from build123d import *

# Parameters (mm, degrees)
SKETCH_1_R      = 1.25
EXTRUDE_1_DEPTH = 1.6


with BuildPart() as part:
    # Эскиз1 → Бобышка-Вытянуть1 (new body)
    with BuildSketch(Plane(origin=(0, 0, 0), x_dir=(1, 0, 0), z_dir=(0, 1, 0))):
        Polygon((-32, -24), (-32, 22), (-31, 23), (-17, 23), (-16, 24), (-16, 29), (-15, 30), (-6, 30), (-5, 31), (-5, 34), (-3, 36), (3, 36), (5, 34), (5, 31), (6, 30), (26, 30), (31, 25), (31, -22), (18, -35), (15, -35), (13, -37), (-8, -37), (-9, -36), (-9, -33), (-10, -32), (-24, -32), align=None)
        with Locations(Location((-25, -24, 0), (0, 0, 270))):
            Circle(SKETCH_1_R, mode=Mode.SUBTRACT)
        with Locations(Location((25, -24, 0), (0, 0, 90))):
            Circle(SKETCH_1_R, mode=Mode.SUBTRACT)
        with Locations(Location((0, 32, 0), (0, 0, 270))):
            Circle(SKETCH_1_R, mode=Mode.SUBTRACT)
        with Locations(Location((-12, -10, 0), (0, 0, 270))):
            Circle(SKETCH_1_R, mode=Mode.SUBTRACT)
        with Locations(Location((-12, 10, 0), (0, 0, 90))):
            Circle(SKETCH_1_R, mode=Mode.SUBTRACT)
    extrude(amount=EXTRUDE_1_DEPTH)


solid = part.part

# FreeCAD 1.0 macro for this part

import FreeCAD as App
import Part
import Sketcher

V = App.Vector


def add_polygon(sketch, points):
    """Adds a closed chain of lines whose ends are joined by coincident constraints."""
    first, n = sketch.GeometryCount, len(points)
    for a, b in zip(points, points[1:] + points[:1]):
        sketch.addGeometry(Part.LineSegment(App.Vector(*a, 0), App.Vector(*b, 0)), False)
    for i in range(n):
        sketch.addConstraint(Sketcher.Constraint("Coincident", first + i, 2, first + (i + 1) % n, 1))

doc = App.newDocument("Part")
params = doc.addObject("Spreadsheet::Sheet", "Params")
for row, (alias, value) in enumerate([
    ("sketch1_diameter", "2.5 mm"),
    ("sketch1_width", "14 mm"),
    ("sketch1_width2", "21 mm"),
    ("sketch1_width3", "3 mm"),
    ("sketch1_width4", "20 mm"),
    ("pad1_length", "1.6 mm"),
], start=1):
    params.set(f"A{row}", alias)
    params.set(f"B{row}", "=" + value)
    params.setAlias(f"B{row}", alias)

body = doc.addObject("PartDesign::Body", "Body")

# Sketch on XZ plane
sketch1 = doc.addObject("Sketcher::SketchObject", "Sketch")
body.addObject(sketch1)
sketch1.AttachmentSupport = (doc.XZ_Plane, [""])
sketch1.MapMode = "FlatFace"
add_polygon(sketch1, [(-32, -22), (-32, 24), (-24, 32), (-10, 32), (-9, 33), (-9, 36), (-8, 37), (13, 37), (15, 35), (18, 35), (31, 22), (31, -25), (26, -30), (6, -30), (5, -31), (5, -34), (3, -36), (-3, -36), (-5, -34), (-5, -31), (-6, -30), (-15, -30), (-16, -29), (-16, -24), (-17, -23), (-31, -23)])  # lines 0-25
sketch1.addGeometry(Part.Circle(V(25, 24, 0), V(0, 0, 1), 1.2), False)  # 26
sketch1.addGeometry(Part.Circle(V(-25, 24, 0), V(0, 0, 1), 1.2), False)  # 27
sketch1.addGeometry(Part.Circle(V(-12, 10, 0), V(0, 0, 1), 1.2), False)  # 28
sketch1.addGeometry(Part.Circle(V(-12, -10, 0), V(0, 0, 1), 1.2), False)  # 29
sketch1.addGeometry(Part.Circle(V(0, -32, 0), V(0, 0, 1), 1.2), False)  # 30
sketch1.addConstraint([
    Sketcher.Constraint("Vertical", 0),
    Sketcher.Constraint("Horizontal", 2),
    Sketcher.Constraint("Vertical", 4),
    Sketcher.Constraint("Horizontal", 6),
    Sketcher.Constraint("Horizontal", 8),
    Sketcher.Constraint("Vertical", 10),
    Sketcher.Constraint("Horizontal", 12),
    Sketcher.Constraint("Vertical", 14),
    Sketcher.Constraint("Horizontal", 16),
    Sketcher.Constraint("Vertical", 18),
    Sketcher.Constraint("Horizontal", 20),
    Sketcher.Constraint("Vertical", 22),
    Sketcher.Constraint("Horizontal", 24),
    Sketcher.Constraint("Equal", 26, 27),
    Sketcher.Constraint("Equal", 27, 28),
    Sketcher.Constraint("Equal", 28, 29),
    Sketcher.Constraint("Equal", 29, 30),
    Sketcher.Constraint("Symmetric", 26, 3, 27, 3, -2),
    Sketcher.Constraint("Symmetric", 14, 2, 17, 2, -2),
    Sketcher.Constraint("Symmetric", 12, 2, 19, 2, -2),
    Sketcher.Constraint("Symmetric", 28, 3, 29, 3, -1),
    Sketcher.Constraint("PointOnObject", 30, 3, -2),
    Sketcher.Constraint("Parallel", 1, 3),
    Sketcher.Constraint("Parallel", 3, 5),
    Sketcher.Constraint("Perpendicular", 5, 7),
    Sketcher.Constraint("Parallel", 7, 9),
    Sketcher.Constraint("Perpendicular", 9, 11),
    Sketcher.Constraint("Parallel", 11, 13),
    Sketcher.Constraint("Parallel", 13, 15),
    Sketcher.Constraint("Perpendicular", 15, 17),
    Sketcher.Constraint("Parallel", 17, 19),
    Sketcher.Constraint("Parallel", 19, 21),
    Sketcher.Constraint("Parallel", 21, 23),
    Sketcher.Constraint("Parallel", 23, 25),
    Sketcher.Constraint("Horizontal", 27, 3, 0, 2),
    Sketcher.Constraint("Horizontal", 13, 2, 18, 2),
    Sketcher.Constraint("Equal", 2, 24),
    Sketcher.Constraint("Equal", 8, 4),
    Sketcher.Constraint("Equal", 4, 14),
    Sketcher.Constraint("Equal", 3, 5),
    Sketcher.Constraint("Equal", 5, 13),
    Sketcher.Constraint("Equal", 7, 15),
    Sketcher.Constraint("Equal", 19, 21),
    Sketcher.Constraint("Equal", 21, 23),
    Sketcher.Constraint("Equal", 23, 25),
    Sketcher.Constraint("Diameter", 26, 2.5),
    Sketcher.Constraint("DistanceX", 2, 1, 2, 2, 14.0),
    Sketcher.Constraint("DistanceX", 6, 1, 6, 2, 21.0),
    Sketcher.Constraint("DistanceX", 8, 1, 8, 2, 3.0),
    Sketcher.Constraint("DistanceX", 12, 2, 12, 1, 20.0),
    Sketcher.Constraint("DistanceX", 16, 2, 16, 1, 6.0),
    Sketcher.Constraint("DistanceX", 20, 2, 20, 1, 9.0),
    Sketcher.Constraint("DistanceY", 0, 1, 0, 2, 46.0),
    Sketcher.Constraint("DistanceY", 10, 2, 10, 1, 47.0),
    Sketcher.Constraint("DistanceY", 22, 1, 22, 2, 5.0),
    Sketcher.Constraint("DistanceX", -1, 1, 26, 3, 25.0),
    Sketcher.Constraint("DistanceY", -1, 1, 26, 3, 24.0),
    Sketcher.Constraint("DistanceX", 28, 3, -1, 1, 12.0),
    Sketcher.Constraint("DistanceY", -1, 1, 28, 3, 10.0),
    Sketcher.Constraint("DistanceY", 30, 3, -1, 1, 32.0),
    Sketcher.Constraint("DistanceX", 0, 2, -1, 1, 32.0),
    Sketcher.Constraint("DistanceX", 1, 2, -1, 1, 24.0),
    Sketcher.Constraint("DistanceX", 3, 2, -1, 1, 9.0),
])
sketch1.setExpression("Constraints[71]", "Params.sketch1_diameter")
sketch1.setExpression("Constraints[72]", "Params.sketch1_width")
sketch1.setExpression("Constraints[73]", "Params.sketch1_width2")
sketch1.setExpression("Constraints[74]", "Params.sketch1_width3")
sketch1.setExpression("Constraints[75]", "Params.sketch1_width4")
pad1 = doc.addObject("PartDesign::Pad", "Pad")
body.addObject(pad1)
pad1.Profile = sketch1
pad1.setExpression("Length", "Params.pad1_length")
pad1.Reversed = True

doc.recompute()
